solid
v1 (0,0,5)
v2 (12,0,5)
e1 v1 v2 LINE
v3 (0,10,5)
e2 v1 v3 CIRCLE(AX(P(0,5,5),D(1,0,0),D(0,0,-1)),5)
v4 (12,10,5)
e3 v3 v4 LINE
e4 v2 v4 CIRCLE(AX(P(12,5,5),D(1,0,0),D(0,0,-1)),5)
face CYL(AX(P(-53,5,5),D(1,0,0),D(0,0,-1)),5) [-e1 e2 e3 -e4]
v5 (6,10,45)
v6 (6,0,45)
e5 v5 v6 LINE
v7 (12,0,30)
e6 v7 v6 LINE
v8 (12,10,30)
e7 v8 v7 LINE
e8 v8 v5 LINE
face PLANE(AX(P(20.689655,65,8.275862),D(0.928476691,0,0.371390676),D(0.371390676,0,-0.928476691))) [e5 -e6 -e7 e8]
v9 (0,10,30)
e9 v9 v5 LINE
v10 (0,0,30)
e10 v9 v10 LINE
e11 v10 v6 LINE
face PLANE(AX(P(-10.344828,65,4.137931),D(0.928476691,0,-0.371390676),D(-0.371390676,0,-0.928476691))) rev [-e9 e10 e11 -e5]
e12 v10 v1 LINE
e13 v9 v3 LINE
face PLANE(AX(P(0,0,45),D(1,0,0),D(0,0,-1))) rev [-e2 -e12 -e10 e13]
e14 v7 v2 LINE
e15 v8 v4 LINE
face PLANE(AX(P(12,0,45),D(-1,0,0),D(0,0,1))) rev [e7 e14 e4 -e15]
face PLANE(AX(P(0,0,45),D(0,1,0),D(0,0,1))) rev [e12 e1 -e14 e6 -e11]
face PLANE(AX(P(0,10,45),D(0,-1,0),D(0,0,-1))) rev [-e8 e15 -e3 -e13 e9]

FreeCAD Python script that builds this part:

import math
import FreeCAD as App
import Part
import Sketcher
Q = App.Units.Quantity

doc = App.newDocument("Part")
params = doc.addObject("Spreadsheet::Sheet", "Params")
for row, (alias, value) in enumerate([
    ("sketch1_width", "12 mm"),
    ("sketch1_height", "10 mm"),
    ("pad1_length", "45 mm"),
    ("sketch2_radius", "5 mm"),
    ("pocket1_length", "65 mm"),
    ("sketch3_width", "6 mm"),
    ("sketch3_height", "15 mm"),
    ("pocket2_length", "65 mm"),
], start=1):
    params.set(f"A{row}", alias)
    params.set(f"B{row}", "=" + value)
    params.setAlias(f"B{row}", alias)

body = doc.addObject("PartDesign::Body", "Body")

# Sketch on XY plane
sketch1 = body.newObject("Sketcher::SketchObject", "Sketch")
sketch1.AttachmentSupport = (doc.getObject("XY_Plane"), [""])
sketch1.MapMode = "FlatFace"
sketch1.addGeometry(Part.LineSegment(App.Vector(0, 10, 0), App.Vector(0, 0, 0)), False)
sketch1.addGeometry(Part.LineSegment(App.Vector(0, 0, 0), App.Vector(12, 0, 0)), False)
sketch1.addGeometry(Part.LineSegment(App.Vector(12, 0, 0), App.Vector(12, 10, 0)), False)
sketch1.addGeometry(Part.LineSegment(App.Vector(12, 10, 0), App.Vector(0, 10, 0)), False)
sketch1.addConstraint(Sketcher.Constraint("Coincident", 0, 2, 1, 1))
sketch1.addConstraint(Sketcher.Constraint("Coincident", 1, 2, 2, 1))
sketch1.addConstraint(Sketcher.Constraint("Coincident", 2, 2, 3, 1))
sketch1.addConstraint(Sketcher.Constraint("Coincident", 3, 2, 0, 1))
sketch1.addConstraint(Sketcher.Constraint("Vertical", 0))
sketch1.addConstraint(Sketcher.Constraint("Horizontal", 1))
sketch1.addConstraint(Sketcher.Constraint("Vertical", 2))
sketch1.addConstraint(Sketcher.Constraint("Horizontal", 3))
sketch1.addConstraint(Sketcher.Constraint("Coincident", 0, 2, -1, 1))
sketch1.addConstraint(Sketcher.Constraint("DistanceX", 1, 1, 1, 2, Q("12 mm")))
sketch1.addConstraint(Sketcher.Constraint("DistanceY", 0, 2, 0, 1, Q("10 mm")))
sketch1.setExpression("Constraints[9]", "Params.sketch1_width")
sketch1.setExpression("Constraints[10]", "Params.sketch1_height")
pad1 = body.newObject("PartDesign::Pad", "Pad")
pad1.Profile = sketch1
pad1.setExpression("Length", "Params.pad1_length")

# Sketch on YZ plane
sketch2 = body.newObject("Sketcher::SketchObject", "Sketch001")
sketch2.AttachmentSupport = (doc.getObject("YZ_Plane"), [""])
sketch2.MapMode = "FlatFace"
sketch2.AttachmentOffset = App.Placement(App.Vector(0, 0, 12), App.Rotation())
sketch2.addGeometry(Part.LineSegment(App.Vector(0, 0, 0), App.Vector(5, 0, 0)), False)
sketch2.addGeometry(Part.ArcOfCircle(Part.Circle(App.Vector(5, 5, 0), App.Vector(0, 0, 1), 5), math.radians(180), math.radians(270)), False)
sketch2.addGeometry(Part.LineSegment(App.Vector(0, 5, 0), App.Vector(0, 0, 0)), False)
sketch2.addGeometry(Part.LineSegment(App.Vector(10, 0, 0), App.Vector(10, 5, 0)), False)
sketch2.addGeometry(Part.ArcOfCircle(Part.Circle(App.Vector(5, 5, 0), App.Vector(0, 0, 1), 5), math.radians(-90), math.radians(0)), False)
sketch2.addGeometry(Part.LineSegment(App.Vector(5, 0, 0), App.Vector(10, 0, 0)), False)
sketch2.addConstraint(Sketcher.Constraint("Tangent", 0, 2, 1, 2))
sketch2.addConstraint(Sketcher.Constraint("Tangent", 1, 1, 2, 1))
sketch2.addConstraint(Sketcher.Constraint("Coincident", 2, 2, 0, 1))
sketch2.addConstraint(Sketcher.Constraint("Tangent", 3, 2, 4, 2))
sketch2.addConstraint(Sketcher.Constraint("Tangent", 4, 1, 5, 1))
sketch2.addConstraint(Sketcher.Constraint("Coincident", 5, 2, 3, 1))
sketch2.addConstraint(Sketcher.Constraint("Horizontal", 0))
sketch2.addConstraint(Sketcher.Constraint("Vertical", 2))
sketch2.addConstraint(Sketcher.Constraint("Vertical", 3))
sketch2.addConstraint(Sketcher.Constraint("Horizontal", 5))
sketch2.addConstraint(Sketcher.Constraint("Coincident", 2, 2, -1, 1))
sketch2.addConstraint(Sketcher.Constraint("Coincident", 4, 3, 1, 3))
sketch2.addConstraint(Sketcher.Constraint("Equal", 1, 4))
sketch2.addConstraint(Sketcher.Constraint("Radius", 1, Q("5 mm")))
sketch2.setExpression("Constraints[13]", "Params.sketch2_radius")
pocket1 = body.newObject("PartDesign::Pocket", "Pocket")
pocket1.Profile = sketch2
pocket1.setExpression("Length", "Params.pocket1_length")

# Sketch on XZ plane
sketch3 = body.newObject("Sketcher::SketchObject", "Sketch002")
sketch3.AttachmentSupport = (doc.getObject("XZ_Plane"), [""])
sketch3.MapMode = "FlatFace"
sketch3.addGeometry(Part.LineSegment(App.Vector(0, 45, 0), App.Vector(0, 30, 0)), False)
sketch3.addGeometry(Part.LineSegment(App.Vector(0, 30, 0), App.Vector(6, 45, 0)), False)
sketch3.addGeometry(Part.LineSegment(App.Vector(6, 45, 0), App.Vector(0, 45, 0)), False)
sketch3.addGeometry(Part.LineSegment(App.Vector(12, 45, 0), App.Vector(6, 45, 0)), False)
sketch3.addGeometry(Part.LineSegment(App.Vector(6, 45, 0), App.Vector(12, 30, 0)), False)
sketch3.addGeometry(Part.LineSegment(App.Vector(12, 30, 0), App.Vector(12, 45, 0)), False)
sketch3.addConstraint(Sketcher.Constraint("Coincident", 0, 2, 1, 1))
sketch3.addConstraint(Sketcher.Constraint("Coincident", 1, 2, 2, 1))
sketch3.addConstraint(Sketcher.Constraint("Coincident", 2, 2, 0, 1))
sketch3.addConstraint(Sketcher.Constraint("Coincident", 3, 2, 4, 1))
sketch3.addConstraint(Sketcher.Constraint("Coincident", 4, 2, 5, 1))
sketch3.addConstraint(Sketcher.Constraint("Coincident", 5, 2, 3, 1))
sketch3.addConstraint(Sketcher.Constraint("Vertical", 0))
sketch3.addConstraint(Sketcher.Constraint("Horizontal", 2))
sketch3.addConstraint(Sketcher.Constraint("Horizontal", 3))
sketch3.addConstraint(Sketcher.Constraint("Vertical", 5))
sketch3.addConstraint(Sketcher.Constraint("Coincident", 3, 2, 1, 2))
sketch3.addConstraint(Sketcher.Constraint("PointOnObject", 0, 2, -2))
sketch3.addConstraint(Sketcher.Constraint("Horizontal", 0, 2, 4, 2))
sketch3.addConstraint(Sketcher.Constraint("Equal", 2, 3))
sketch3.addConstraint(Sketcher.Constraint("DistanceX", 2, 2, 2, 1, Q("6 mm")))
sketch3.addConstraint(Sketcher.Constraint("DistanceY", 0, 2, 0, 1, Q("15 mm")))
sketch3.addConstraint(Sketcher.Constraint("DistanceY", -1, 1, 0, 2, Q("30 mm")))
sketch3.setExpression("Constraints[14]", "Params.sketch3_width")
sketch3.setExpression("Constraints[15]", "Params.sketch3_height")
pocket2 = body.newObject("PartDesign::Pocket", "Pocket001")
pocket2.Profile = sketch3
pocket2.setExpression("Length", "Params.pocket2_length")

doc.recompute()
